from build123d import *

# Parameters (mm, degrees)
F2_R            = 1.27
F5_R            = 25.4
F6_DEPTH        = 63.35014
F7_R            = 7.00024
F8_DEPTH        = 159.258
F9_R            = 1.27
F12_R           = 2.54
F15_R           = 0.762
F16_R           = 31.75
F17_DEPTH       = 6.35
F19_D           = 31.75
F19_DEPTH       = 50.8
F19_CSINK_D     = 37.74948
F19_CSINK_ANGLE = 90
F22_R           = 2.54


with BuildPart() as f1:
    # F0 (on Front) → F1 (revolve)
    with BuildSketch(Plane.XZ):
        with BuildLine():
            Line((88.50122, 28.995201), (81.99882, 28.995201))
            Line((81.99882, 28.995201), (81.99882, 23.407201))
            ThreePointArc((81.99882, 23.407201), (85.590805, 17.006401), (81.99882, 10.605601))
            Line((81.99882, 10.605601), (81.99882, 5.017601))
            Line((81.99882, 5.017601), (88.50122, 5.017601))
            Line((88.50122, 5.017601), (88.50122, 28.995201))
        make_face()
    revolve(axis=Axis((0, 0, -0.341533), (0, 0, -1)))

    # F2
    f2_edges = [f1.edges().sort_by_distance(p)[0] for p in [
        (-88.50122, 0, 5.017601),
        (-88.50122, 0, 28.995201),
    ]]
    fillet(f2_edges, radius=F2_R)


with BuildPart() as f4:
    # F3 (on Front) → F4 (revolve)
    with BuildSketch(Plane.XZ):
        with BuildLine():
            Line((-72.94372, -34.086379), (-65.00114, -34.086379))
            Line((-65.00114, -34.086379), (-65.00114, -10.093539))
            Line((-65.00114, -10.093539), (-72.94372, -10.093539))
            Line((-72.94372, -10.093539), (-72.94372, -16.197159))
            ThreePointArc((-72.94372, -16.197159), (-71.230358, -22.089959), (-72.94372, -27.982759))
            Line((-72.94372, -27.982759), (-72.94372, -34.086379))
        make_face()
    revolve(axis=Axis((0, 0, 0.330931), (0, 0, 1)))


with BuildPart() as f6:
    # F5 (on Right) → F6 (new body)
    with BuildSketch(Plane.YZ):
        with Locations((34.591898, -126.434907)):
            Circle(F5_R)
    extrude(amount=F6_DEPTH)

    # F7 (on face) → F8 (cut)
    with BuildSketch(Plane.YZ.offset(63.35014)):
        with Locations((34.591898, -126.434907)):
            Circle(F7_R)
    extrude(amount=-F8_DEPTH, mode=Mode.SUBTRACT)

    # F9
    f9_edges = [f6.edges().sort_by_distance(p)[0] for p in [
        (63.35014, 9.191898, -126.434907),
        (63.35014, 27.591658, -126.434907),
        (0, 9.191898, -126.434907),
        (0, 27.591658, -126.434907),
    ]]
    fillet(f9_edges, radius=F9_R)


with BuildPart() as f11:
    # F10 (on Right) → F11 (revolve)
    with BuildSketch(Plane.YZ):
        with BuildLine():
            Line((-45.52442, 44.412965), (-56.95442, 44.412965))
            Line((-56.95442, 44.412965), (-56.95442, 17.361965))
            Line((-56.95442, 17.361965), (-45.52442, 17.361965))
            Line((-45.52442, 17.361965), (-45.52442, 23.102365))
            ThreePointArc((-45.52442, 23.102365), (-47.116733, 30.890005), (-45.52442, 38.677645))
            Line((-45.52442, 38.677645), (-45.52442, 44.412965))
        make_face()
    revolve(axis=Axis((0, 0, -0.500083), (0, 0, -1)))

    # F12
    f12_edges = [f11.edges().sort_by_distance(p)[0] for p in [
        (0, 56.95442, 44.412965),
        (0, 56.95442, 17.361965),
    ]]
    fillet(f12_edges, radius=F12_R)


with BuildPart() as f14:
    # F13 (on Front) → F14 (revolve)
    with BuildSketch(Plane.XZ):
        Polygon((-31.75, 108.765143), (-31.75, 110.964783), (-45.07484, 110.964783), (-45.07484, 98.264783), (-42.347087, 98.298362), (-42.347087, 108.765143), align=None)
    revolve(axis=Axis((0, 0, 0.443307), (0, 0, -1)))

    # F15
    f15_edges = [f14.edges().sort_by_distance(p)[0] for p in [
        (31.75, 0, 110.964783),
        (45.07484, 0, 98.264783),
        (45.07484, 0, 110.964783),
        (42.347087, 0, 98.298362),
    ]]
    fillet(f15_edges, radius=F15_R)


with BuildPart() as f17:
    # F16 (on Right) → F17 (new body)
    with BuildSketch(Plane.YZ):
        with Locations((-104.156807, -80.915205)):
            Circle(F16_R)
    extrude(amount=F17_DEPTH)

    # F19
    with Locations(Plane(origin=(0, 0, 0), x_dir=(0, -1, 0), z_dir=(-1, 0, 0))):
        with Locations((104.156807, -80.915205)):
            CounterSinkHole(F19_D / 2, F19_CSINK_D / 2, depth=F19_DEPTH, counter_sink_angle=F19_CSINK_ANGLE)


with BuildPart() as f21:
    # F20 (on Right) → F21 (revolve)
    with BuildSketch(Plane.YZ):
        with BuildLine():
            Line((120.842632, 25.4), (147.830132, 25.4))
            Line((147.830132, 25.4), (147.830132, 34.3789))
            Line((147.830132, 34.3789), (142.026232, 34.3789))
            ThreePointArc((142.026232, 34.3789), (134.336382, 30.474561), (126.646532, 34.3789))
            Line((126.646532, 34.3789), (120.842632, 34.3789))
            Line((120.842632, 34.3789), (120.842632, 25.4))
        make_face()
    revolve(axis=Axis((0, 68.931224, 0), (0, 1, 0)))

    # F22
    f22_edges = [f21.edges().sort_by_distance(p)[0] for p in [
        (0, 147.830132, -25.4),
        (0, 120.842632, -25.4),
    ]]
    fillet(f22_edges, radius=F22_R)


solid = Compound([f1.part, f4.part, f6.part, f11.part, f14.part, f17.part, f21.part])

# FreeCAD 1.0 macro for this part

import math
import FreeCAD as App
import Part
import Sketcher
Q = App.Units.Quantity


def edges_at(feature, points):
    """Names of the edges that pass closest to the given points."""
    edges = feature.Shape.Edges
    near = lambda p: min(range(len(edges)), key=lambda i: edges[i].distToShape(Part.Vertex(*p))[0])
    return sorted({f"Edge{near(p) + 1}" for p in points})


def add_polygon(sketch, points):
    """Adds a closed chain of lines whose ends are joined by coincident constraints."""
    first, n = sketch.GeometryCount, len(points)
    for a, b in zip(points, points[1:] + points[:1]):
        sketch.addGeometry(Part.LineSegment(App.Vector(*a, 0), App.Vector(*b, 0)), False)
    for i in range(n):
        sketch.addConstraint(Sketcher.Constraint("Coincident", first + i, 2, first + (i + 1) % n, 1))

doc = App.newDocument("Part")
body = doc.addObject("PartDesign::Body", "Body")

# Sketch on XZ plane
sketch1 = body.newObject("Sketcher::SketchObject", "Sketch")
sketch1.AttachmentSupport = (doc.getObject("XZ_Plane"), [""])
sketch1.MapMode = "FlatFace"
sketch1.addGeometry(Part.LineSegment(App.Vector(89, 29, 0), App.Vector(82, 29, 0)), False)
sketch1.addGeometry(Part.LineSegment(App.Vector(82, 29, 0), App.Vector(82, 23, 0)), False)
sketch1.addGeometry(Part.ArcOfCircle(Part.Circle(App.Vector(78, 17, 0), App.Vector(0, 0, 1), 7), math.radians(-59), math.radians(59)), False)
sketch1.addGeometry(Part.LineSegment(App.Vector(82, 11, 0), App.Vector(82, 5, 0)), False)
sketch1.addGeometry(Part.LineSegment(App.Vector(82, 5, 0), App.Vector(89, 5, 0)), False)
sketch1.addGeometry(Part.LineSegment(App.Vector(89, 5, 0), App.Vector(89, 29, 0)), False)
sketch1.addConstraint(Sketcher.Constraint("Coincident", 0, 2, 1, 1))
sketch1.addConstraint(Sketcher.Constraint("Coincident", 1, 2, 2, 2))
sketch1.addConstraint(Sketcher.Constraint("Coincident", 2, 1, 3, 1))
sketch1.addConstraint(Sketcher.Constraint("Coincident", 3, 2, 4, 1))
sketch1.addConstraint(Sketcher.Constraint("Coincident", 4, 2, 5, 1))
sketch1.addConstraint(Sketcher.Constraint("Coincident", 5, 2, 0, 1))
sketch1.addConstraint(Sketcher.Constraint("Horizontal", 0))
sketch1.addConstraint(Sketcher.Constraint("Vertical", 1))
sketch1.addConstraint(Sketcher.Constraint("Vertical", 3))
sketch1.addConstraint(Sketcher.Constraint("Horizontal", 4))
sketch1.addConstraint(Sketcher.Constraint("Vertical", 5))
sketch1.addConstraint(Sketcher.Constraint("Vertical", 1, 2, 2, 1))
sketch1.addConstraint(Sketcher.Constraint("Equal", 1, 3))
sketch1.addConstraint(Sketcher.Constraint("DistanceY", 1, 2, 1, 1, Q("0.22 in")))
sketch1.addConstraint(Sketcher.Constraint("DistanceX", 0, 2, 0, 1, Q("0.256 in")))
sketch1.addConstraint(Sketcher.Constraint("DistanceY", 5, 1, 5, 2, Q("0.944 in")))
sketch1.addConstraint(Sketcher.Constraint("Radius", 2, 7.499001))
sketch1.addConstraint(Sketcher.Constraint("DistanceX", -1, 1, 0, 2, Q("3.2283 in")))
sketch1.addConstraint(Sketcher.Constraint("DistanceY", -1, 1, 2, 3, 17.006401))
revolution = body.newObject("PartDesign::Revolution", "Revolution")
revolution.Profile = sketch1
revolution.ReferenceAxis = (sketch1, ["V_Axis"])
revolution.Angle = 360
doc.recompute()

fillet = body.newObject("PartDesign::Fillet", "Fillet")
fillet.Base = (revolution, edges_at(revolution, [(-88.501, 0, 5.018), (-88.501, 0, 28.995)]))
fillet.Radius = Q("0.05 in")
body2 = doc.addObject("PartDesign::Body", "Body001")

# Sketch on XZ plane
sketch2 = body2.newObject("Sketcher::SketchObject", "Sketch001")
sketch2.AttachmentSupport = (doc.getObject("XZ_Plane001"), [""])
sketch2.MapMode = "FlatFace"
sketch2.addGeometry(Part.LineSegment(App.Vector(-73, -34, 0), App.Vector(-65, -34, 0)), False)
sketch2.addGeometry(Part.LineSegment(App.Vector(-65, -34, 0), App.Vector(-65, -10, 0)), False)
sketch2.addGeometry(Part.LineSegment(App.Vector(-65, -10, 0), App.Vector(-73, -10, 0)), False)
sketch2.addGeometry(Part.LineSegment(App.Vector(-73, -10, 0), App.Vector(-73, -16, 0)), False)
sketch2.addGeometry(Part.ArcOfCircle(Part.Circle(App.Vector(-82, -22, 0), App.Vector(0, 0, 1), 11), math.radians(-32), math.radians(32)), False)
sketch2.addGeometry(Part.LineSegment(App.Vector(-73, -28, 0), App.Vector(-73, -34, 0)), False)
sketch2.addConstraint(Sketcher.Constraint("Coincident", 0, 2, 1, 1))
sketch2.addConstraint(Sketcher.Constraint("Coincident", 1, 2, 2, 1))
sketch2.addConstraint(Sketcher.Constraint("Coincident", 2, 2, 3, 1))
sketch2.addConstraint(Sketcher.Constraint("Coincident", 3, 2, 4, 2))
sketch2.addConstraint(Sketcher.Constraint("Coincident", 4, 1, 5, 1))
sketch2.addConstraint(Sketcher.Constraint("Coincident", 5, 2, 0, 1))
sketch2.addConstraint(Sketcher.Constraint("Horizontal", 0))
sketch2.addConstraint(Sketcher.Constraint("Vertical", 1))
sketch2.addConstraint(Sketcher.Constraint("Horizontal", 2))
sketch2.addConstraint(Sketcher.Constraint("Vertical", 3))
sketch2.addConstraint(Sketcher.Constraint("Vertical", 5))
sketch2.addConstraint(Sketcher.Constraint("Vertical", 3, 2, 4, 1))
sketch2.addConstraint(Sketcher.Constraint("Equal", 3, 5))
sketch2.addConstraint(Sketcher.Constraint("DistanceX", 0, 1, 0, 2, Q("0.3127 in")))
sketch2.addConstraint(Sketcher.Constraint("DistanceY", 1, 1, 1, 2, Q("0.9446 in")))
sketch2.addConstraint(Sketcher.Constraint("DistanceY", 3, 2, 3, 1, Q("0.2403 in")))
sketch2.addConstraint(Sketcher.Constraint("DistanceX", 0, 2, -1, 1, Q("2.5591 in")))
sketch2.addConstraint(Sketcher.Constraint("Radius", 4, 10.990293))
sketch2.addConstraint(Sketcher.Constraint("DistanceY", 4, 3, -1, 1, 22.089959))
revolution2 = body2.newObject("PartDesign::Revolution", "Revolution001")
revolution2.Profile = sketch2
revolution2.ReferenceAxis = (sketch2, ["V_Axis"])
revolution2.Angle = 360
body3 = doc.addObject("PartDesign::Body", "Body002")

# Sketch on YZ plane
sketch3 = body3.newObject("Sketcher::SketchObject", "Sketch002")
sketch3.AttachmentSupport = (doc.getObject("YZ_Plane002"), [""])
sketch3.MapMode = "FlatFace"
sketch3.addGeometry(Part.Circle(App.Vector(35, -126, 0), App.Vector(0, 0, 1), 25), False)
sketch3.addConstraint(Sketcher.Constraint("Diameter", 0, Q("2 in")))
sketch3.addConstraint(Sketcher.Constraint("DistanceX", -1, 1, 0, 3, 34.591898))
sketch3.addConstraint(Sketcher.Constraint("DistanceY", 0, 3, -1, 1, 126.434907))
pad1 = body3.newObject("PartDesign::Pad", "Pad")
pad1.Profile = sketch3
pad1.Length = Q("2.4941 in")

# Sketch on YZ plane
sketch4 = body3.newObject("Sketcher::SketchObject", "Sketch003")
sketch4.AttachmentSupport = (doc.getObject("YZ_Plane002"), [""])
sketch4.MapMode = "FlatFace"
sketch4.AttachmentOffset = App.Placement(App.Vector(0, 0, 2.4941 * 25.4), App.Rotation())
sketch4.addGeometry(Part.Circle(App.Vector(35, -126, 0), App.Vector(0, 0, 1), 7), False)
sketch4.addConstraint(Sketcher.Constraint("Diameter", 0, Q("0.5512 in")))
sketch4.addConstraint(Sketcher.Constraint("DistanceX", -1, 1, 0, 3, 34.591898))
sketch4.addConstraint(Sketcher.Constraint("DistanceY", 0, 3, -1, 1, 126.434907))
pocket1 = body3.newObject("PartDesign::Pocket", "Pocket")
pocket1.Profile = sketch4
pocket1.Length = Q("6.27 in")
doc.recompute()

fillet2 = body3.newObject("PartDesign::Fillet", "Fillet001")
fillet2.Base = (pocket1, edges_at(pocket1, [
    (63.35, 9.192, -126.435),
    (63.35, 27.592, -126.435),
    (0, 9.192, -126.435),
    (0, 27.592, -126.435),
]))
fillet2.Radius = Q("0.05 in")
body4 = doc.addObject("PartDesign::Body", "Body003")

# Sketch on YZ plane
sketch5 = body4.newObject("Sketcher::SketchObject", "Sketch004")
sketch5.AttachmentSupport = (doc.getObject("YZ_Plane003"), [""])
sketch5.MapMode = "FlatFace"
sketch5.addGeometry(Part.LineSegment(App.Vector(-46, 44, 0), App.Vector(-57, 44, 0)), False)
sketch5.addGeometry(Part.LineSegment(App.Vector(-57, 44, 0), App.Vector(-57, 17, 0)), False)
sketch5.addGeometry(Part.LineSegment(App.Vector(-57, 17, 0), App.Vector(-46, 17, 0)), False)
sketch5.addGeometry(Part.LineSegment(App.Vector(-46, 17, 0), App.Vector(-46, 23, 0)), False)
sketch5.addGeometry(Part.ArcOfCircle(Part.Circle(App.Vector(-27, 31, 0), App.Vector(0, 0, 1), 20), math.radians(157), math.radians(203)), False)
sketch5.addGeometry(Part.LineSegment(App.Vector(-46, 39, 0), App.Vector(-46, 44, 0)), False)
sketch5.addConstraint(Sketcher.Constraint("Coincident", 0, 2, 1, 1))
sketch5.addConstraint(Sketcher.Constraint("Coincident", 1, 2, 2, 1))
sketch5.addConstraint(Sketcher.Constraint("Coincident", 2, 2, 3, 1))
sketch5.addConstraint(Sketcher.Constraint("Coincident", 3, 2, 4, 2))
sketch5.addConstraint(Sketcher.Constraint("Coincident", 4, 1, 5, 1))
sketch5.addConstraint(Sketcher.Constraint("Coincident", 5, 2, 0, 1))
sketch5.addConstraint(Sketcher.Constraint("Horizontal", 0))
sketch5.addConstraint(Sketcher.Constraint("Vertical", 1))
sketch5.addConstraint(Sketcher.Constraint("Horizontal", 2))
sketch5.addConstraint(Sketcher.Constraint("Vertical", 3))
sketch5.addConstraint(Sketcher.Constraint("Vertical", 5))
sketch5.addConstraint(Sketcher.Constraint("Vertical", 3, 2, 4, 1))
sketch5.addConstraint(Sketcher.Constraint("DistanceX", 0, 2, 0, 1, Q("0.45 in")))
sketch5.addConstraint(Sketcher.Constraint("Radius", 4, Q("0.7811001 in")))
sketch5.addConstraint(Sketcher.Constraint("DistanceY", 1, 2, 1, 1, Q("1.065 in")))
sketch5.addConstraint(Sketcher.Constraint("DistanceY", 3, 1, 3, 2, Q("0.226 in")))
sketch5.addConstraint(Sketcher.Constraint("DistanceY", 5, 1, 5, 2, Q("0.2258 in")))
sketch5.addConstraint(Sketcher.Constraint("DistanceX", 0, 2, -1, 1, Q("2.2423 in")))
sketch5.addConstraint(Sketcher.Constraint("DistanceY", -1, 1, 4, 3, 30.890005))
revolution3 = body4.newObject("PartDesign::Revolution", "Revolution002")
revolution3.Profile = sketch5
revolution3.ReferenceAxis = (sketch5, ["V_Axis"])
revolution3.Angle = 360
doc.recompute()

fillet3 = body4.newObject("PartDesign::Fillet", "Fillet002")
fillet3.Base = (revolution3, edges_at(revolution3, [(0, 56.954, 44.413), (0, 56.954, 17.362)]))
fillet3.Radius = Q("0.1 in")
body5 = doc.addObject("PartDesign::Body", "Body004")

# Sketch on XZ plane
sketch6 = body5.newObject("Sketcher::SketchObject", "Sketch005")
sketch6.AttachmentSupport = (doc.getObject("XZ_Plane004"), [""])
sketch6.MapMode = "FlatFace"
add_polygon(sketch6, [(-31.8, 108.8), (-31.8, 111), (-45.1, 111), (-45.1, 98.3), (-42.3, 98.3), (-42.3, 108.8)])  # lines 0-5
sketch6.addConstraint(Sketcher.Constraint("Vertical", 0))
sketch6.addConstraint(Sketcher.Constraint("Horizontal", 1))
sketch6.addConstraint(Sketcher.Constraint("Vertical", 2))
sketch6.addConstraint(Sketcher.Constraint("Vertical", 4))
sketch6.addConstraint(Sketcher.Constraint("Horizontal", 5))
sketch6.addConstraint(Sketcher.Constraint("DistanceY", 2, 2, 2, 1, Q("0.5 in")))
sketch6.addConstraint(Sketcher.Constraint("DistanceX", 0, 2, -1, 1, Q("1.25 in")))
sketch6.addConstraint(Sketcher.Constraint("DistanceX", 1, 2, 1, 1, Q("0.5246 in")))
sketch6.addConstraint(Sketcher.Constraint("DistanceY", 0, 1, 0, 2, Q("0.0866 in")))
sketch6.addConstraint(Sketcher.Constraint("Distance", 3, Q("0.1074 in")))
sketch6.addConstraint(Sketcher.Constraint("DistanceY", 4, 1, 4, 2, 10.466781))
sketch6.addConstraint(Sketcher.Constraint("DistanceY", -1, 1, 3, 2, 98.298362))
revolution4 = body5.newObject("PartDesign::Revolution", "Revolution003")
revolution4.Profile = sketch6
revolution4.ReferenceAxis = (sketch6, ["V_Axis"])
revolution4.Angle = 360
doc.recompute()

fillet4 = body5.newObject("PartDesign::Fillet", "Fillet003")
fillet4.Base = (revolution4, edges_at(revolution4, [
    (31.75, 0, 110.965),
    (45.075, 0, 98.265),
    (45.075, 0, 110.965),
    (42.347, 0, 98.298),
]))
fillet4.Radius = Q("0.03 in")
body6 = doc.addObject("PartDesign::Body", "Body005")

# Sketch on YZ plane
sketch7 = body6.newObject("Sketcher::SketchObject", "Sketch006")
sketch7.AttachmentSupport = (doc.getObject("YZ_Plane005"), [""])
sketch7.MapMode = "FlatFace"
sketch7.addGeometry(Part.Circle(App.Vector(-104, -81, 0), App.Vector(0, 0, 1), 32), False)
sketch7.addConstraint(Sketcher.Constraint("Diameter", 0, Q("2.5 in")))
sketch7.addConstraint(Sketcher.Constraint("DistanceX", 0, 3, -1, 1, 104.156807))
sketch7.addConstraint(Sketcher.Constraint("DistanceY", 0, 3, -1, 1, 80.915205))
pad2 = body6.newObject("PartDesign::Pad", "Pad001")
pad2.Profile = sketch7
pad2.Length = Q("0.25 in")

# Sketch on YZ plane
sketch8 = body6.newObject("Sketcher::SketchObject", "Sketch007")
sketch8.AttachmentSupport = (doc.getObject("YZ_Plane005"), [""])
sketch8.MapMode = "FlatFace"
sketch8.addGeometry(Part.Circle(App.Vector(-104, -81, 0), App.Vector(0, 0, 1), 16), False)
sketch8.addConstraint(Sketcher.Constraint("Diameter", 0, Q("1.25 in")))
sketch8.addConstraint(Sketcher.Constraint("DistanceX", 0, 3, -1, 1, 104.156807))
sketch8.addConstraint(Sketcher.Constraint("DistanceY", 0, 3, -1, 1, 80.915205))
doc.recompute()
hole = body6.newObject("PartDesign::Hole", "Hole")
hole.Profile = sketch8
hole.ThreadType = "None"
hole.Diameter = Q("1.25 in")
hole.DepthType = "Dimension"
hole.Depth = Q("2 in")
hole.DrillPoint = "Flat"
hole.HoleCutType = "Countersink"
hole.HoleCutDiameter = Q("1.4862 in")
hole.HoleCutCountersinkAngle = 90
hole.Reversed = True
body7 = doc.addObject("PartDesign::Body", "Body006")

# Sketch on YZ plane
sketch9 = body7.newObject("Sketcher::SketchObject", "Sketch008")
sketch9.AttachmentSupport = (doc.getObject("YZ_Plane006"), [""])
sketch9.MapMode = "FlatFace"
sketch9.addGeometry(Part.LineSegment(App.Vector(121, 25, 0), App.Vector(148, 25, 0)), False)
sketch9.addGeometry(Part.LineSegment(App.Vector(148, 25, 0), App.Vector(148, 34, 0)), False)
sketch9.addGeometry(Part.LineSegment(App.Vector(148, 34, 0), App.Vector(142, 34, 0)), False)
sketch9.addGeometry(Part.ArcOfCircle(Part.Circle(App.Vector(134, 40, 0), App.Vector(0, 0, 1), 10), math.radians(-144), math.radians(-36)), False)
sketch9.addGeometry(Part.LineSegment(App.Vector(127, 34, 0), App.Vector(121, 34, 0)), False)
sketch9.addGeometry(Part.LineSegment(App.Vector(121, 34, 0), App.Vector(121, 25, 0)), False)
sketch9.addConstraint(Sketcher.Constraint("Coincident", 0, 2, 1, 1))
sketch9.addConstraint(Sketcher.Constraint("Coincident", 1, 2, 2, 1))
sketch9.addConstraint(Sketcher.Constraint("Coincident", 2, 2, 3, 2))
sketch9.addConstraint(Sketcher.Constraint("Coincident", 3, 1, 4, 1))
sketch9.addConstraint(Sketcher.Constraint("Coincident", 4, 2, 5, 1))
sketch9.addConstraint(Sketcher.Constraint("Coincident", 5, 2, 0, 1))
sketch9.addConstraint(Sketcher.Constraint("Horizontal", 0))
sketch9.addConstraint(Sketcher.Constraint("Vertical", 1))
sketch9.addConstraint(Sketcher.Constraint("Horizontal", 2))
sketch9.addConstraint(Sketcher.Constraint("Horizontal", 4))
sketch9.addConstraint(Sketcher.Constraint("Vertical", 5))
sketch9.addConstraint(Sketcher.Constraint("Horizontal", 2, 2, 3, 1))
sketch9.addConstraint(Sketcher.Constraint("Equal", 2, 4))
sketch9.addConstraint(Sketcher.Constraint("DistanceY", -1, 1, 0, 2, Q("1 in")))
sketch9.addConstraint(Sketcher.Constraint("Radius", 3, Q("0.375 in")))
sketch9.addConstraint(Sketcher.Constraint("DistanceX", 0, 1, 0, 2, Q("1.0625 in")))
sketch9.addConstraint(Sketcher.Constraint("DistanceX", 2, 2, 2, 1, Q("0.2285 in")))
sketch9.addConstraint(Sketcher.Constraint("DistanceY", 1, 1, 1, 2, Q("0.3535 in")))
sketch9.addConstraint(Sketcher.Constraint("DistanceX", -1, 1, 3, 3, 134.336382))
revolution5 = body7.newObject("PartDesign::Revolution", "Revolution004")
revolution5.Profile = sketch9
revolution5.ReferenceAxis = (sketch9, ["H_Axis"])
revolution5.Angle = 360
doc.recompute()

fillet5 = body7.newObject("PartDesign::Fillet", "Fillet004")
fillet5.Base = (revolution5, edges_at(revolution5, [(0, 147.83, -25.4), (0, 120.843, -25.4)]))
fillet5.Radius = Q("0.1 in")

doc.recompute()
